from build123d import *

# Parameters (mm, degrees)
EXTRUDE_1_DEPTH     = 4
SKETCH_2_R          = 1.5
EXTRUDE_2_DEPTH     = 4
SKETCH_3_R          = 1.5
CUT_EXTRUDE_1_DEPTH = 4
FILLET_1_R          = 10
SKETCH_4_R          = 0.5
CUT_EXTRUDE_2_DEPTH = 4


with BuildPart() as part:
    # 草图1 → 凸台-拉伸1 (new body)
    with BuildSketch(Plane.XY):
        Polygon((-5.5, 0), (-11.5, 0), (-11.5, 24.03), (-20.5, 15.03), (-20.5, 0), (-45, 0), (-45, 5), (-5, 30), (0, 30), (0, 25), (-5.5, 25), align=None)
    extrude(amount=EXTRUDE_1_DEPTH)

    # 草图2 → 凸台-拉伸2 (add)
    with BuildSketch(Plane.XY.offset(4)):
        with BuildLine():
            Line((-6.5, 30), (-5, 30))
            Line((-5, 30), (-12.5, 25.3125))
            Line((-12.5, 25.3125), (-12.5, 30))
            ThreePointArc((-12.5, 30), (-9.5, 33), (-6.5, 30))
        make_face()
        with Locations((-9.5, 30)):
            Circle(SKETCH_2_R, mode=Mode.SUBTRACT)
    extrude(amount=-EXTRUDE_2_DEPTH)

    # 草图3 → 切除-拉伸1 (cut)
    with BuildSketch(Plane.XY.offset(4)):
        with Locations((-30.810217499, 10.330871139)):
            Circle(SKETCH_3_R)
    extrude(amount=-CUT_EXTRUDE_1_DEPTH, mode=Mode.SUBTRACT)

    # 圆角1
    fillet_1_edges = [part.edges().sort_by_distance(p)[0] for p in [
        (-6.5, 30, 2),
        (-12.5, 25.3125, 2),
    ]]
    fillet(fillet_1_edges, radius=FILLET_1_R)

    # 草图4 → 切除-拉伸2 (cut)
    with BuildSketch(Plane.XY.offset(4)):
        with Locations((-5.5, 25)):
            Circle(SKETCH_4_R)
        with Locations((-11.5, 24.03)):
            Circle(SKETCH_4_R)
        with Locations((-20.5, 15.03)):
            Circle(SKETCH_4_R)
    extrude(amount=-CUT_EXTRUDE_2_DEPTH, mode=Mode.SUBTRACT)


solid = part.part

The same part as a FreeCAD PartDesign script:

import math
import FreeCAD as App
import Part
import Sketcher
from FreeCAD import Vector
Q = App.Units.Quantity


def edges_at(feature, points):
    """Names of the edges that pass closest to the given points."""
    edges = feature.Shape.Edges
    near = lambda p: min(range(len(edges)), key=lambda i: edges[i].distToShape(Part.Vertex(*p))[0])
    return sorted({f"Edge{near(p) + 1}" for p in points})


def add_polygon(sketch, points):
    """Adds a closed chain of lines whose ends are joined by coincident constraints."""
    first, n = sketch.GeometryCount, len(points)
    for a, b in zip(points, points[1:] + points[:1]):
        sketch.addGeometry(Part.LineSegment(App.Vector(*a, 0), App.Vector(*b, 0)), False)
    for i in range(n):
        sketch.addConstraint(Sketcher.Constraint("Coincident", first + i, 2, first + (i + 1) % n, 1))

doc = App.newDocument("Part")
params = doc.addObject("Spreadsheet::Sheet", "Params")
for row, (alias, value) in enumerate([
    ("sketch1_width", "6 mm"),
    ("sketch1_width2", "5 mm"),
    ("sketch1_height", "25 mm"),
    ("sketch1_width3", "5.5 mm"),
    ("sketch1_width4", "24.5 mm"),
    ("pad1_length", "4 mm"),
    ("sketch2_diameter", "3 mm"),
    ("sketch2_radius", "3 mm"),
    ("sketch2_width", "1.5 mm"),
    ("pad2_length", "4 mm"),
    ("sketch3_diameter", "3 mm"),
    ("pocket1_length", "4 mm"),
    ("fillet_radius", "10 mm"),
    ("sketch4_diameter", "1 mm"),
    ("pocket2_length", "4 mm"),
], start=1):
    params.set(f"A{row}", alias)
    params.set(f"B{row}", "=" + value)
    params.setAlias(f"B{row}", alias)

body = doc.addObject("PartDesign::Body", "Body")

sketch1 = body.newObject("Sketcher::SketchObject", "Sketch")
sketch1.AttachmentSupport = (doc.getObject("XY_Plane"), [""])
sketch1.MapMode = "FlatFace"
add_polygon(sketch1, [(-11.5, 0), (-5.5, 0), (-5.5, 25), (0, 25), (0, 30), (-5, 30), (-45, 5), (-45, 0), (-20.5, 0), (-20.5, 15.03), (-11.5, 24.03)])
sketch1.addConstraint([
    Sketcher.Constraint("Horizontal", 0),
    Sketcher.Constraint("Vertical", 1),
    Sketcher.Constraint("Horizontal", 2),
    Sketcher.Constraint("Vertical", 3),
    Sketcher.Constraint("Horizontal", 4),
    Sketcher.Constraint("Vertical", 6),
    Sketcher.Constraint("Horizontal", 7),
    Sketcher.Constraint("Vertical", 8),
    Sketcher.Constraint("Vertical", 10),
    Sketcher.Constraint("PointOnObject", 0, 2, -1),
    Sketcher.Constraint("PointOnObject", 2, 2, -2),
    Sketcher.Constraint("PointOnObject", 6, 2, -1),
    Sketcher.Constraint("Equal", 4, 3),
    Sketcher.Constraint("Equal", 3, 6),
    Sketcher.Constraint("DistanceX", 0, 1, 0, 2, 6.0),
    Sketcher.Constraint("DistanceX", 4, 2, 4, 1, 5.0),
    Sketcher.Constraint("DistanceY", 1, 1, 1, 2, 25.0),
    Sketcher.Constraint("Angle", 9, Q("45 deg")),
    Sketcher.Constraint("DistanceX", 2, 1, 2, 2, 5.5),
    Sketcher.Constraint("DistanceX", 7, 1, 7, 2, 24.5),
    Sketcher.Constraint("DistanceX", 5, 2, -1, 1, 45.0),
    Sketcher.Constraint("DistanceY", 8, 1, 8, 2, 15.03),
])
sketch1.setExpression("Constraints[25]", "Params.sketch1_width")
sketch1.setExpression("Constraints[26]", "Params.sketch1_width2")
sketch1.setExpression("Constraints[27]", "Params.sketch1_height")
sketch1.setExpression("Constraints[29]", "Params.sketch1_width3")
sketch1.setExpression("Constraints[30]", "Params.sketch1_width4")
pad1 = body.newObject("PartDesign::Pad", "Pad")
pad1.Profile = sketch1
pad1.setExpression("Length", "Params.pad1_length")

sketch2 = body.newObject("Sketcher::SketchObject", "Sketch001")
sketch2.AttachmentSupport = (doc.getObject("XY_Plane"), [""])
sketch2.MapMode = "FlatFace"
sketch2.AttachmentOffset = App.Placement(Vector(0, 0, 4), App.Rotation())
sketch2.addGeometry([
    Part.LineSegment(Vector(-5, 30, 0), Vector(-6.5, 30, 0)),
    Part.ArcOfCircle(Part.Circle(Vector(-9.5, 30, 0), Vector(0, 0, 1), 3), math.radians(0), math.radians(180)),
    Part.LineSegment(Vector(-12.5, 30, 0), Vector(-12.5, 25.3125, 0)),
    Part.LineSegment(Vector(-12.5, 25.3125, 0), Vector(-5, 30, 0)),
    Part.Circle(Vector(-9.5, 30, 0), Vector(0, 0, 1), 1.5),
], False)
sketch2.addConstraint([
    Sketcher.Constraint("Coincident", 0, 2, 1, 1),
    Sketcher.Constraint("Tangent", 1, 2, 2, 1),
    Sketcher.Constraint("Coincident", 2, 2, 3, 1),
    Sketcher.Constraint("Coincident", 3, 2, 0, 1),
    Sketcher.Constraint("Horizontal", 0),
    Sketcher.Constraint("Vertical", 2),
    Sketcher.Constraint("Coincident", 4, 3, 1, 3),
    Sketcher.Constraint("Horizontal", 4, 3, 0, 2),
    Sketcher.Constraint("Diameter", 4, 3.0),
    Sketcher.Constraint("Radius", 1, 3.0),
    Sketcher.Constraint("DistanceX", 0, 2, 0, 1, 1.5),
    Sketcher.Constraint("DistanceY", -1, 1, 1, 3, 30.0),
    Sketcher.Constraint("DistanceX", 3, 2, -1, 1, 5.0),
    Sketcher.Constraint("DistanceY", 2, 2, 2, 1, 4.6875),
])
sketch2.setExpression("Constraints[8]", "Params.sketch2_diameter")
sketch2.setExpression("Constraints[9]", "Params.sketch2_radius")
sketch2.setExpression("Constraints[10]", "Params.sketch2_width")
pad2 = body.newObject("PartDesign::Pad", "Pad001")
pad2.Profile = sketch2
pad2.setExpression("Length", "Params.pad2_length")
pad2.Reversed = True

sketch3 = body.newObject("Sketcher::SketchObject", "Sketch002")
sketch3.AttachmentSupport = (doc.getObject("XY_Plane"), [""])
sketch3.MapMode = "FlatFace"
sketch3.AttachmentOffset = App.Placement(Vector(0, 0, 4), App.Rotation())
sketch3.addGeometry(Part.Circle(Vector(-30.810217, 10.330871, 0), Vector(0, 0, 1), 1.5), False)
sketch3.addConstraint([
    Sketcher.Constraint("Diameter", 0, 3.0),
    Sketcher.Constraint("DistanceY", -1, 1, 0, 3, 10.330871),
    Sketcher.Constraint("DistanceX", 0, 3, -1, 1, 30.810217),
])
sketch3.setExpression("Constraints[0]", "Params.sketch3_diameter")
pocket1 = body.newObject("PartDesign::Pocket", "Pocket")
pocket1.Profile = sketch3
pocket1.setExpression("Length", "Params.pocket1_length")
doc.recompute()

fillet = body.newObject("PartDesign::Fillet", "Fillet")
fillet.Base = (pocket1, edges_at(pocket1, [(-6.5, 30, 2), (-12.5, 25.312, 2)]))
fillet.setExpression("Radius", "Params.fillet_radius")

sketch4 = body.newObject("Sketcher::SketchObject", "Sketch003")
sketch4.AttachmentSupport = (doc.getObject("XY_Plane"), [""])
sketch4.MapMode = "FlatFace"
sketch4.AttachmentOffset = App.Placement(Vector(0, 0, 4), App.Rotation())
sketch4.addGeometry([
    Part.Circle(Vector(-5.5, 25, 0), Vector(0, 0, 1), 0.5),
    Part.Circle(Vector(-11.5, 24.03, 0), Vector(0, 0, 1), 0.5),
    Part.Circle(Vector(-20.5, 15.03, 0), Vector(0, 0, 1), 0.5),
], False)
sketch4.addConstraint([
    Sketcher.Constraint("Equal", 0, 1),
    Sketcher.Constraint("Equal", 1, 2),
    Sketcher.Constraint("Diameter", 0, 1.0),
    Sketcher.Constraint("DistanceY", -1, 1, 0, 3, 25.0),
    Sketcher.Constraint("DistanceX", 1, 3, 0, 3, 6.0),
    Sketcher.Constraint("DistanceX", 2, 3, 1, 3, 9.0),
    Sketcher.Constraint("DistanceY", 2, 3, 1, 3, 9.0),
    Sketcher.Constraint("DistanceX", 0, 3, -1, 1, 5.5),
    Sketcher.Constraint("DistanceY", -1, 1, 1, 3, 24.03),
])
sketch4.setExpression("Constraints[2]", "Params.sketch4_diameter")
pocket2 = body.newObject("PartDesign::Pocket", "Pocket001")
pocket2.Profile = sketch4
pocket2.setExpression("Length", "Params.pocket2_length")

doc.recompute()
